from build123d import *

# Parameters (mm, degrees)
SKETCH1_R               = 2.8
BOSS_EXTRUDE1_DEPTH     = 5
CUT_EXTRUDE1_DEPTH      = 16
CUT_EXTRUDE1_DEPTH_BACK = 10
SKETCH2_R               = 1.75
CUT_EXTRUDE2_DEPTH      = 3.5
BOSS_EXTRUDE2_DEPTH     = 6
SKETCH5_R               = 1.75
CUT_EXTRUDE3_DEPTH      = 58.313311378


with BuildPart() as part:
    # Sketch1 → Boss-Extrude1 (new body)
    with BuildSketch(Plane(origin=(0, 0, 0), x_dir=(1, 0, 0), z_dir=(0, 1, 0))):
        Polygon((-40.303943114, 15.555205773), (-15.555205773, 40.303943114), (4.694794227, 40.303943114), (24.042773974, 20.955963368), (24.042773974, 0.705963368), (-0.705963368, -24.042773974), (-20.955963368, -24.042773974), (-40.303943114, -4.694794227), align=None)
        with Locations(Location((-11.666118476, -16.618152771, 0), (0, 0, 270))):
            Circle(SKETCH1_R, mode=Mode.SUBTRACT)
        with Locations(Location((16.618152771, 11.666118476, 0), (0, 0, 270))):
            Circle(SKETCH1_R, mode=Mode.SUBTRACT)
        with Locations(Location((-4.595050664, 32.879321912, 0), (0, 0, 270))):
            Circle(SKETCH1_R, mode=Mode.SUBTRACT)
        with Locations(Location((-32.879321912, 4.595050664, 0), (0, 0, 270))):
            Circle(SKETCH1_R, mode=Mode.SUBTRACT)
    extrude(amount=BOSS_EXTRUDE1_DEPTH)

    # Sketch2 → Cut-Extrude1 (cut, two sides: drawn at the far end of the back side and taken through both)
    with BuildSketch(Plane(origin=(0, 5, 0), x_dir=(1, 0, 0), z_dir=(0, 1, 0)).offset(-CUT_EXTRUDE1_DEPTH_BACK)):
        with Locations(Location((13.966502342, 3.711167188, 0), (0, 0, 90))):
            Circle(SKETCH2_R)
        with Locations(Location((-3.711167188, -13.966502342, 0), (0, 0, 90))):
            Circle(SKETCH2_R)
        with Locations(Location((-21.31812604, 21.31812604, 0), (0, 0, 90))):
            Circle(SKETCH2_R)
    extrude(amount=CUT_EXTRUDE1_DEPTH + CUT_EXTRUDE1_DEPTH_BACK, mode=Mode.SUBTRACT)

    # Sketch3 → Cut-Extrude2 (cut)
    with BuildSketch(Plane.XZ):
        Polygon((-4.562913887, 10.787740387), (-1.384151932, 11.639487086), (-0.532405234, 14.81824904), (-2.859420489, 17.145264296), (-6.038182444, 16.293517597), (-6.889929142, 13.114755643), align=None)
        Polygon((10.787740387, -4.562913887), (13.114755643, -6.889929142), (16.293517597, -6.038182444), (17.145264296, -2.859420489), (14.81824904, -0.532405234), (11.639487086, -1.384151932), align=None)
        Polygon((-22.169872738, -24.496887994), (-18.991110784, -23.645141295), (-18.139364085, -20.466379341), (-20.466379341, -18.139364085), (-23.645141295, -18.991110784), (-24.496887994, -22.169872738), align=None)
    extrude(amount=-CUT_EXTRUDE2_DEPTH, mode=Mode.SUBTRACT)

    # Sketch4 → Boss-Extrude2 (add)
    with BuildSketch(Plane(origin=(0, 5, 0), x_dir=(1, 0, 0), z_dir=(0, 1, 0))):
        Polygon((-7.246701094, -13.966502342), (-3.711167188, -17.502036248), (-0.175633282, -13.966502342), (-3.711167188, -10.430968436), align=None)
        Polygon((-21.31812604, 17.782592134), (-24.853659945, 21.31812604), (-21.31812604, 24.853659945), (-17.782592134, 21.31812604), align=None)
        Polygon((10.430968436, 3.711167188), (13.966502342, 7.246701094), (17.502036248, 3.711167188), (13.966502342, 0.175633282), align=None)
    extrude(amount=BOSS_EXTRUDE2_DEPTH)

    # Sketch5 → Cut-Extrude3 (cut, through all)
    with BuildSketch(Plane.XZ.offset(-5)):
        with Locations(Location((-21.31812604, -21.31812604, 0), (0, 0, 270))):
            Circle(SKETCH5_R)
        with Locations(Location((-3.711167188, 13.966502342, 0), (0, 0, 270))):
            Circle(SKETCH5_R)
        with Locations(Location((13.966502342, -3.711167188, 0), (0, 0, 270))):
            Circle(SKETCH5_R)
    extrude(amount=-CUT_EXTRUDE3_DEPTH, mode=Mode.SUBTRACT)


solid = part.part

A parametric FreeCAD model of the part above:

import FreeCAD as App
import Part
import Sketcher
Q = App.Units.Quantity

doc = App.newDocument("Part")
body = doc.addObject("PartDesign::Body", "Body")

# Sketch on XZ plane
sketch1 = body.newObject("Sketcher::SketchObject", "Sketch")
sketch1.AttachmentSupport = (doc.getObject("XZ_Plane"), [""])
sketch1.MapMode = "FlatFace"
sketch1.addGeometry(Part.LineSegment(App.Vector(-15.555206, -40.303943, 0), App.Vector(-40.303943, -15.555206, 0)), False)
sketch1.addGeometry(Part.LineSegment(App.Vector(-40.303943, -15.555206, 0), App.Vector(-40.303943, 4.694794, 0)), False)
sketch1.addGeometry(Part.LineSegment(App.Vector(-40.303943, 4.694794, 0), App.Vector(-20.955963, 24.042774, 0)), False)
sketch1.addGeometry(Part.LineSegment(App.Vector(-20.955963, 24.042774, 0), App.Vector(-0.705963, 24.042774, 0)), False)
sketch1.addGeometry(Part.LineSegment(App.Vector(-0.705963, 24.042774, 0), App.Vector(24.042774, -0.705963, 0)), False)
sketch1.addGeometry(Part.LineSegment(App.Vector(24.042774, -0.705963, 0), App.Vector(24.042774, -20.955963, 0)), False)
sketch1.addGeometry(Part.LineSegment(App.Vector(24.042774, -20.955963, 0), App.Vector(4.694794, -40.303943, 0)), False)
sketch1.addGeometry(Part.LineSegment(App.Vector(4.694794, -40.303943, 0), App.Vector(-15.555206, -40.303943, 0)), False)
sketch1.addGeometry(Part.Circle(App.Vector(-11.666118, 16.618153, 0), App.Vector(0, 0, 1), 2.8), False)
sketch1.addGeometry(Part.Circle(App.Vector(-32.879322, -4.595051, 0), App.Vector(0, 0, 1), 2.8), False)
sketch1.addGeometry(Part.Circle(App.Vector(16.618153, -11.666118, 0), App.Vector(0, 0, 1), 2.8), False)
sketch1.addGeometry(Part.Circle(App.Vector(-4.595051, -32.879322, 0), App.Vector(0, 0, 1), 2.8), False)
sketch1.addConstraint(Sketcher.Constraint("Coincident", 0, 2, 1, 1))
sketch1.addConstraint(Sketcher.Constraint("Coincident", 1, 2, 2, 1))
sketch1.addConstraint(Sketcher.Constraint("Coincident", 2, 2, 3, 1))
sketch1.addConstraint(Sketcher.Constraint("Coincident", 3, 2, 4, 1))
sketch1.addConstraint(Sketcher.Constraint("Coincident", 4, 2, 5, 1))
sketch1.addConstraint(Sketcher.Constraint("Coincident", 5, 2, 6, 1))
sketch1.addConstraint(Sketcher.Constraint("Coincident", 6, 2, 7, 1))
sketch1.addConstraint(Sketcher.Constraint("Coincident", 7, 2, 0, 1))
sketch1.addConstraint(Sketcher.Constraint("Vertical", 1))
sketch1.addConstraint(Sketcher.Constraint("Horizontal", 3))
sketch1.addConstraint(Sketcher.Constraint("Vertical", 5))
sketch1.addConstraint(Sketcher.Constraint("Horizontal", 7))
sketch1.addConstraint(Sketcher.Constraint("Equal", 8, 9))
sketch1.addConstraint(Sketcher.Constraint("Equal", 9, 10))
sketch1.addConstraint(Sketcher.Constraint("Equal", 10, 11))
sketch1.addConstraint(Sketcher.Constraint("Perpendicular", 0, 2))
sketch1.addConstraint(Sketcher.Constraint("Perpendicular", 2, 4))
sketch1.addConstraint(Sketcher.Constraint("Perpendicular", 4, 6))
sketch1.addConstraint(Sketcher.Constraint("Equal", 3, 7))
sketch1.addConstraint(Sketcher.Constraint("Equal", 7, 1))
sketch1.addConstraint(Sketcher.Constraint("Equal", 1, 5))
sketch1.addConstraint(Sketcher.Constraint("Diameter", 8, 5.6))
sketch1.addConstraint(Sketcher.Constraint("Angle", 0, Q("135 deg")))
sketch1.addConstraint(Sketcher.Constraint("Distance", 0, 35.0))
sketch1.addConstraint(Sketcher.Constraint("DistanceX", 3, 1, 3, 2, 20.25))
sketch1.addConstraint(Sketcher.Constraint("DistanceX", 8, 3, -1, 1, 11.666118))
sketch1.addConstraint(Sketcher.Constraint("DistanceX", 9, 3, -1, 1, 32.879322))
sketch1.addConstraint(Sketcher.Constraint("DistanceY", 9, 3, -1, 1, 4.595051))
sketch1.addConstraint(Sketcher.Constraint("DistanceY", 10, 3, -1, 1, 11.666118))
sketch1.addConstraint(Sketcher.Constraint("DistanceX", 11, 3, -1, 1, 4.595051))
sketch1.addConstraint(Sketcher.Constraint("DistanceY", 11, 3, -1, 1, 32.879322))
sketch1.addConstraint(Sketcher.Constraint("DistanceX", 8, 3, 10, 3, 28.284271))
sketch1.addConstraint(Sketcher.Constraint("DistanceY", 10, 3, 8, 3, 28.284271))
sketch1.addConstraint(Sketcher.Constraint("DistanceX", 0, 2, 9, 3, 7.424621))
sketch1.addConstraint(Sketcher.Constraint("DistanceY", 0, 2, 8, 3, 32.173359))
sketch1.addConstraint(Sketcher.Constraint("DistanceY", 8, 3, 2, 2, 7.424621))
pad1 = body.newObject("PartDesign::Pad", "Pad")
pad1.Profile = sketch1
pad1.Length = 5
pad1.Reversed = True

# Sketch on XZ plane
sketch2 = body.newObject("Sketcher::SketchObject", "Sketch001")
sketch2.AttachmentSupport = (doc.getObject("XZ_Plane"), [""])
sketch2.MapMode = "FlatFace"
sketch2.AttachmentOffset = App.Placement(App.Vector(0, 0, -5), App.Rotation())
sketch2.addGeometry(Part.Circle(App.Vector(13.966502, -3.711167, 0), App.Vector(0, 0, 1), 1.75), False)
sketch2.addGeometry(Part.Circle(App.Vector(-3.711167, 13.966502, 0), App.Vector(0, 0, 1), 1.75), False)
sketch2.addGeometry(Part.Circle(App.Vector(-21.318126, -21.318126, 0), App.Vector(0, 0, 1), 1.75), False)
sketch2.addConstraint(Sketcher.Constraint("Equal", 0, 1))
sketch2.addConstraint(Sketcher.Constraint("Equal", 1, 2))
sketch2.addConstraint(Sketcher.Constraint("Diameter", 0, 3.5))
sketch2.addConstraint(Sketcher.Constraint("DistanceX", 1, 3, 0, 3, 17.67767))
sketch2.addConstraint(Sketcher.Constraint("DistanceY", 0, 3, 1, 3, 17.67767))
sketch2.addConstraint(Sketcher.Constraint("DistanceX", 2, 3, 0, 3, 35.284628))
sketch2.addConstraint(Sketcher.Constraint("DistanceY", 2, 3, 0, 3, 17.606959))
sketch2.addConstraint(Sketcher.Constraint("DistanceX", -1, 1, 0, 3, 13.966502))
sketch2.addConstraint(Sketcher.Constraint("DistanceY", 0, 3, -1, 1, 3.711167))
pocket1 = body.newObject("PartDesign::Pocket", "Pocket")
pocket1.Profile = sketch2
pocket1.Type = "ThroughAll"
pocket1.Midplane = True

# Sketch on XZ plane
sketch3 = body.newObject("Sketcher::SketchObject", "Sketch002")
sketch3.AttachmentSupport = (doc.getObject("XZ_Plane"), [""])
sketch3.MapMode = "FlatFace"
sketch3.addGeometry(Part.LineSegment(App.Vector(-4.562914, 10.78774, 0), App.Vector(-1.384152, 11.639487, 0)), False)
sketch3.addGeometry(Part.LineSegment(App.Vector(-1.384152, 11.639487, 0), App.Vector(-0.532405, 14.818249, 0)), False)
sketch3.addGeometry(Part.LineSegment(App.Vector(-0.532405, 14.818249, 0), App.Vector(-2.85942, 17.145264, 0)), False)
sketch3.addGeometry(Part.LineSegment(App.Vector(-2.85942, 17.145264, 0), App.Vector(-6.038182, 16.293518, 0)), False)
sketch3.addGeometry(Part.LineSegment(App.Vector(-6.038182, 16.293518, 0), App.Vector(-6.889929, 13.114756, 0)), False)
sketch3.addGeometry(Part.LineSegment(App.Vector(-6.889929, 13.114756, 0), App.Vector(-4.562914, 10.78774, 0)), False)
sketch3.addGeometry(Part.LineSegment(App.Vector(10.78774, -4.562914, 0), App.Vector(13.114756, -6.889929, 0)), False)
sketch3.addGeometry(Part.LineSegment(App.Vector(13.114756, -6.889929, 0), App.Vector(16.293518, -6.038182, 0)), False)
sketch3.addGeometry(Part.LineSegment(App.Vector(16.293518, -6.038182, 0), App.Vector(17.145264, -2.85942, 0)), False)
sketch3.addGeometry(Part.LineSegment(App.Vector(17.145264, -2.85942, 0), App.Vector(14.818249, -0.532405, 0)), False)
sketch3.addGeometry(Part.LineSegment(App.Vector(14.818249, -0.532405, 0), App.Vector(11.639487, -1.384152, 0)), False)
sketch3.addGeometry(Part.LineSegment(App.Vector(11.639487, -1.384152, 0), App.Vector(10.78774, -4.562914, 0)), False)
sketch3.addGeometry(Part.LineSegment(App.Vector(-22.169873, -24.496888, 0), App.Vector(-18.991111, -23.645141, 0)), False)
sketch3.addGeometry(Part.LineSegment(App.Vector(-18.991111, -23.645141, 0), App.Vector(-18.139364, -20.466379, 0)), False)
sketch3.addGeometry(Part.LineSegment(App.Vector(-18.139364, -20.466379, 0), App.Vector(-20.466379, -18.139364, 0)), False)
sketch3.addGeometry(Part.LineSegment(App.Vector(-20.466379, -18.139364, 0), App.Vector(-23.645141, -18.991111, 0)), False)
sketch3.addGeometry(Part.LineSegment(App.Vector(-23.645141, -18.991111, 0), App.Vector(-24.496888, -22.169873, 0)), False)
sketch3.addGeometry(Part.LineSegment(App.Vector(-24.496888, -22.169873, 0), App.Vector(-22.169873, -24.496888, 0)), False)
sketch3.addConstraint(Sketcher.Constraint("Coincident", 0, 2, 1, 1))
sketch3.addConstraint(Sketcher.Constraint("Coincident", 1, 2, 2, 1))
sketch3.addConstraint(Sketcher.Constraint("Coincident", 2, 2, 3, 1))
sketch3.addConstraint(Sketcher.Constraint("Coincident", 3, 2, 4, 1))
sketch3.addConstraint(Sketcher.Constraint("Coincident", 4, 2, 5, 1))
sketch3.addConstraint(Sketcher.Constraint("Coincident", 5, 2, 0, 1))
sketch3.addConstraint(Sketcher.Constraint("Coincident", 6, 2, 7, 1))
sketch3.addConstraint(Sketcher.Constraint("Coincident", 7, 2, 8, 1))
sketch3.addConstraint(Sketcher.Constraint("Coincident", 8, 2, 9, 1))
sketch3.addConstraint(Sketcher.Constraint("Coincident", 9, 2, 10, 1))
sketch3.addConstraint(Sketcher.Constraint("Coincident", 10, 2, 11, 1))
sketch3.addConstraint(Sketcher.Constraint("Coincident", 11, 2, 6, 1))
sketch3.addConstraint(Sketcher.Constraint("Coincident", 12, 2, 13, 1))
sketch3.addConstraint(Sketcher.Constraint("Coincident", 13, 2, 14, 1))
sketch3.addConstraint(Sketcher.Constraint("Coincident", 14, 2, 15, 1))
sketch3.addConstraint(Sketcher.Constraint("Coincident", 15, 2, 16, 1))
sketch3.addConstraint(Sketcher.Constraint("Coincident", 16, 2, 17, 1))
sketch3.addConstraint(Sketcher.Constraint("Coincident", 17, 2, 12, 1))
sketch3.addConstraint(Sketcher.Constraint("Parallel", 0, 3))
sketch3.addConstraint(Sketcher.Constraint("Parallel", 1, 4))
sketch3.addConstraint(Sketcher.Constraint("Parallel", 2, 5))
sketch3.addConstraint(Sketcher.Constraint("Parallel", 5, 6))
sketch3.addConstraint(Sketcher.Constraint("Parallel", 3, 7))
sketch3.addConstraint(Sketcher.Constraint("Parallel", 4, 8))
sketch3.addConstraint(Sketcher.Constraint("Parallel", 6, 9))
sketch3.addConstraint(Sketcher.Constraint("Parallel", 7, 10))
sketch3.addConstraint(Sketcher.Constraint("Parallel", 8, 11))
sketch3.addConstraint(Sketcher.Constraint("Parallel", 10, 12))
sketch3.addConstraint(Sketcher.Constraint("Parallel", 11, 13))
sketch3.addConstraint(Sketcher.Constraint("Parallel", 9, 14))
sketch3.addConstraint(Sketcher.Constraint("Parallel", 12, 15))
sketch3.addConstraint(Sketcher.Constraint("Parallel", 13, 16))
sketch3.addConstraint(Sketcher.Constraint("Parallel", 14, 17))
sketch3.addConstraint(Sketcher.Constraint("Equal", 0, 1))
sketch3.addConstraint(Sketcher.Constraint("Equal", 1, 2))
sketch3.addConstraint(Sketcher.Constraint("Equal", 2, 3))
sketch3.addConstraint(Sketcher.Constraint("Equal", 5, 6))
sketch3.addConstraint(Sketcher.Constraint("Equal", 6, 7))
sketch3.addConstraint(Sketcher.Constraint("Equal", 7, 8))
sketch3.addConstraint(Sketcher.Constraint("Equal", 8, 9))
sketch3.addConstraint(Sketcher.Constraint("Equal", 11, 12))
sketch3.addConstraint(Sketcher.Constraint("Equal", 12, 13))
sketch3.addConstraint(Sketcher.Constraint("Equal", 13, 14))
sketch3.addConstraint(Sketcher.Constraint("Equal", 14, 15))
sketch3.addConstraint(Sketcher.Constraint("Angle", 0, Q("15 deg")))
sketch3.addConstraint(Sketcher.Constraint("Angle", 1, Q("75 deg")))
sketch3.addConstraint(Sketcher.Constraint("Angle", 2, Q("135 deg")))
sketch3.addConstraint(Sketcher.Constraint("DistanceX", 0, 2, 9, 2, 16.202401))
sketch3.addConstraint(Sketcher.Constraint("DistanceX", 0, 2, -1, 1, 1.384152))
sketch3.addConstraint(Sketcher.Constraint("DistanceY", -1, 1, 1, 2, 14.818249))
sketch3.addConstraint(Sketcher.Constraint("DistanceX", 2, 2, -1, 1, 2.85942))
sketch3.addConstraint(Sketcher.Constraint("DistanceY", 6, 2, -1, 1, 6.889929))
sketch3.addConstraint(Sketcher.Constraint("DistanceX", 12, 2, -1, 1, 18.991111))
sketch3.addConstraint(Sketcher.Constraint("DistanceY", 12, 2, -1, 1, 23.645141))
pocket2 = body.newObject("PartDesign::Pocket", "Pocket001")
pocket2.Profile = sketch3
pocket2.Length = 3.5

# Sketch on XZ plane
sketch4 = body.newObject("Sketcher::SketchObject", "Sketch003")
sketch4.AttachmentSupport = (doc.getObject("XZ_Plane"), [""])
sketch4.MapMode = "FlatFace"
sketch4.AttachmentOffset = App.Placement(App.Vector(0, 0, -5), App.Rotation())
sketch4.addGeometry(Part.LineSegment(App.Vector(-7.246701, 13.966502, 0), App.Vector(-3.711167, 17.502036, 0)), False)
sketch4.addGeometry(Part.LineSegment(App.Vector(-3.711167, 17.502036, 0), App.Vector(-0.175633, 13.966502, 0)), False)
sketch4.addGeometry(Part.LineSegment(App.Vector(-0.175633, 13.966502, 0), App.Vector(-3.711167, 10.430968, 0)), False)
sketch4.addGeometry(Part.LineSegment(App.Vector(-3.711167, 10.430968, 0), App.Vector(-7.246701, 13.966502, 0)), False)
sketch4.addGeometry(Part.LineSegment(App.Vector(-24.85366, -21.318126, 0), App.Vector(-21.318126, -17.782592, 0)), False)
sketch4.addGeometry(Part.LineSegment(App.Vector(-21.318126, -17.782592, 0), App.Vector(-17.782592, -21.318126, 0)), False)
sketch4.addGeometry(Part.LineSegment(App.Vector(-17.782592, -21.318126, 0), App.Vector(-21.318126, -24.85366, 0)), False)
sketch4.addGeometry(Part.LineSegment(App.Vector(-21.318126, -24.85366, 0), App.Vector(-24.85366, -21.318126, 0)), False)
sketch4.addGeometry(Part.LineSegment(App.Vector(13.966502, -7.246701, 0), App.Vector(10.430968, -3.711167, 0)), False)
sketch4.addGeometry(Part.LineSegment(App.Vector(10.430968, -3.711167, 0), App.Vector(13.966502, -0.175633, 0)), False)
sketch4.addGeometry(Part.LineSegment(App.Vector(13.966502, -0.175633, 0), App.Vector(17.502036, -3.711167, 0)), False)
sketch4.addGeometry(Part.LineSegment(App.Vector(17.502036, -3.711167, 0), App.Vector(13.966502, -7.246701, 0)), False)
sketch4.addConstraint(Sketcher.Constraint("Coincident", 0, 2, 1, 1))
sketch4.addConstraint(Sketcher.Constraint("Coincident", 1, 2, 2, 1))
sketch4.addConstraint(Sketcher.Constraint("Coincident", 2, 2, 3, 1))
sketch4.addConstraint(Sketcher.Constraint("Coincident", 3, 2, 0, 1))
sketch4.addConstraint(Sketcher.Constraint("Coincident", 4, 2, 5, 1))
sketch4.addConstraint(Sketcher.Constraint("Coincident", 5, 2, 6, 1))
sketch4.addConstraint(Sketcher.Constraint("Coincident", 6, 2, 7, 1))
sketch4.addConstraint(Sketcher.Constraint("Coincident", 7, 2, 4, 1))
sketch4.addConstraint(Sketcher.Constraint("Coincident", 8, 2, 9, 1))
sketch4.addConstraint(Sketcher.Constraint("Coincident", 9, 2, 10, 1))
sketch4.addConstraint(Sketcher.Constraint("Coincident", 10, 2, 11, 1))
sketch4.addConstraint(Sketcher.Constraint("Coincident", 11, 2, 8, 1))
sketch4.addConstraint(Sketcher.Constraint("Perpendicular", 0, 1))
sketch4.addConstraint(Sketcher.Constraint("Perpendicular", 1, 2))
sketch4.addConstraint(Sketcher.Constraint("Perpendicular", 2, 3))
sketch4.addConstraint(Sketcher.Constraint("Perpendicular", 3, 4))
sketch4.addConstraint(Sketcher.Constraint("Perpendicular", 4, 5))
sketch4.addConstraint(Sketcher.Constraint("Perpendicular", 5, 6))
sketch4.addConstraint(Sketcher.Constraint("Perpendicular", 6, 7))
sketch4.addConstraint(Sketcher.Constraint("Parallel", 7, 8))
sketch4.addConstraint(Sketcher.Constraint("Perpendicular", 8, 9))
sketch4.addConstraint(Sketcher.Constraint("Perpendicular", 9, 10))
sketch4.addConstraint(Sketcher.Constraint("Perpendicular", 10, 11))
sketch4.addConstraint(Sketcher.Constraint("Horizontal", 1, 2, 3, 2))
sketch4.addConstraint(Sketcher.Constraint("Horizontal", 5, 2, 7, 2))
sketch4.addConstraint(Sketcher.Constraint("Horizontal", 8, 2, 10, 2))
sketch4.addConstraint(Sketcher.Constraint("Vertical", 0, 2, 2, 2))
sketch4.addConstraint(Sketcher.Constraint("Equal", 3, 4))
sketch4.addConstraint(Sketcher.Constraint("Equal", 7, 8))
sketch4.addConstraint(Sketcher.Constraint("Distance", 0, 5.0))
sketch4.addConstraint(Sketcher.Constraint("DistanceX", 3, 2, -1, 1, 7.246701))
sketch4.addConstraint(Sketcher.Constraint("DistanceY", 11, 2, -1, 1, 7.246701))
sketch4.addConstraint(Sketcher.Constraint("DistanceX", 1, 2, 8, 2, 10.606602))
sketch4.addConstraint(Sketcher.Constraint("DistanceY", 9, 2, 2, 2, 10.606602))
sketch4.addConstraint(Sketcher.Constraint("DistanceY", 6, 2, -1, 1, 24.85366))
sketch4.addConstraint(Sketcher.Constraint("DistanceX", 7, 2, -1, 1, 24.85366))
pad2 = body.newObject("PartDesign::Pad", "Pad001")
pad2.Profile = sketch4
pad2.Length = 6
pad2.Reversed = True

# Sketch on XZ plane
sketch5 = body.newObject("Sketcher::SketchObject", "Sketch004")
sketch5.AttachmentSupport = (doc.getObject("XZ_Plane"), [""])
sketch5.MapMode = "FlatFace"
sketch5.AttachmentOffset = App.Placement(App.Vector(0, 0, -5), App.Rotation())
sketch5.addGeometry(Part.Circle(App.Vector(-21.318126, -21.318126, 0), App.Vector(0, 0, 1), 1.75), False)
sketch5.addGeometry(Part.Circle(App.Vector(-3.711167, 13.966502, 0), App.Vector(0, 0, 1), 1.75), False)
sketch5.addGeometry(Part.Circle(App.Vector(13.966502, -3.711167, 0), App.Vector(0, 0, 1), 1.75), False)
sketch5.addConstraint(Sketcher.Constraint("Equal", 0, 1))
sketch5.addConstraint(Sketcher.Constraint("Equal", 1, 2))
sketch5.addConstraint(Sketcher.Constraint("Diameter", 0, 3.5))
sketch5.addConstraint(Sketcher.Constraint("DistanceX", 0, 3, 1, 3, 17.606959))
sketch5.addConstraint(Sketcher.Constraint("DistanceY", 0, 3, 1, 3, 35.284628))
sketch5.addConstraint(Sketcher.Constraint("DistanceX", 1, 3, 2, 3, 17.67767))
sketch5.addConstraint(Sketcher.Constraint("DistanceY", 2, 3, 1, 3, 17.67767))
sketch5.addConstraint(Sketcher.Constraint("DistanceX", 0, 3, -1, 1, 21.318126))
sketch5.addConstraint(Sketcher.Constraint("DistanceY", 0, 3, -1, 1, 21.318126))
pocket3 = body.newObject("PartDesign::Pocket", "Pocket002")
pocket3.Profile = sketch5
pocket3.Type = "ThroughAll"

doc.recompute()
